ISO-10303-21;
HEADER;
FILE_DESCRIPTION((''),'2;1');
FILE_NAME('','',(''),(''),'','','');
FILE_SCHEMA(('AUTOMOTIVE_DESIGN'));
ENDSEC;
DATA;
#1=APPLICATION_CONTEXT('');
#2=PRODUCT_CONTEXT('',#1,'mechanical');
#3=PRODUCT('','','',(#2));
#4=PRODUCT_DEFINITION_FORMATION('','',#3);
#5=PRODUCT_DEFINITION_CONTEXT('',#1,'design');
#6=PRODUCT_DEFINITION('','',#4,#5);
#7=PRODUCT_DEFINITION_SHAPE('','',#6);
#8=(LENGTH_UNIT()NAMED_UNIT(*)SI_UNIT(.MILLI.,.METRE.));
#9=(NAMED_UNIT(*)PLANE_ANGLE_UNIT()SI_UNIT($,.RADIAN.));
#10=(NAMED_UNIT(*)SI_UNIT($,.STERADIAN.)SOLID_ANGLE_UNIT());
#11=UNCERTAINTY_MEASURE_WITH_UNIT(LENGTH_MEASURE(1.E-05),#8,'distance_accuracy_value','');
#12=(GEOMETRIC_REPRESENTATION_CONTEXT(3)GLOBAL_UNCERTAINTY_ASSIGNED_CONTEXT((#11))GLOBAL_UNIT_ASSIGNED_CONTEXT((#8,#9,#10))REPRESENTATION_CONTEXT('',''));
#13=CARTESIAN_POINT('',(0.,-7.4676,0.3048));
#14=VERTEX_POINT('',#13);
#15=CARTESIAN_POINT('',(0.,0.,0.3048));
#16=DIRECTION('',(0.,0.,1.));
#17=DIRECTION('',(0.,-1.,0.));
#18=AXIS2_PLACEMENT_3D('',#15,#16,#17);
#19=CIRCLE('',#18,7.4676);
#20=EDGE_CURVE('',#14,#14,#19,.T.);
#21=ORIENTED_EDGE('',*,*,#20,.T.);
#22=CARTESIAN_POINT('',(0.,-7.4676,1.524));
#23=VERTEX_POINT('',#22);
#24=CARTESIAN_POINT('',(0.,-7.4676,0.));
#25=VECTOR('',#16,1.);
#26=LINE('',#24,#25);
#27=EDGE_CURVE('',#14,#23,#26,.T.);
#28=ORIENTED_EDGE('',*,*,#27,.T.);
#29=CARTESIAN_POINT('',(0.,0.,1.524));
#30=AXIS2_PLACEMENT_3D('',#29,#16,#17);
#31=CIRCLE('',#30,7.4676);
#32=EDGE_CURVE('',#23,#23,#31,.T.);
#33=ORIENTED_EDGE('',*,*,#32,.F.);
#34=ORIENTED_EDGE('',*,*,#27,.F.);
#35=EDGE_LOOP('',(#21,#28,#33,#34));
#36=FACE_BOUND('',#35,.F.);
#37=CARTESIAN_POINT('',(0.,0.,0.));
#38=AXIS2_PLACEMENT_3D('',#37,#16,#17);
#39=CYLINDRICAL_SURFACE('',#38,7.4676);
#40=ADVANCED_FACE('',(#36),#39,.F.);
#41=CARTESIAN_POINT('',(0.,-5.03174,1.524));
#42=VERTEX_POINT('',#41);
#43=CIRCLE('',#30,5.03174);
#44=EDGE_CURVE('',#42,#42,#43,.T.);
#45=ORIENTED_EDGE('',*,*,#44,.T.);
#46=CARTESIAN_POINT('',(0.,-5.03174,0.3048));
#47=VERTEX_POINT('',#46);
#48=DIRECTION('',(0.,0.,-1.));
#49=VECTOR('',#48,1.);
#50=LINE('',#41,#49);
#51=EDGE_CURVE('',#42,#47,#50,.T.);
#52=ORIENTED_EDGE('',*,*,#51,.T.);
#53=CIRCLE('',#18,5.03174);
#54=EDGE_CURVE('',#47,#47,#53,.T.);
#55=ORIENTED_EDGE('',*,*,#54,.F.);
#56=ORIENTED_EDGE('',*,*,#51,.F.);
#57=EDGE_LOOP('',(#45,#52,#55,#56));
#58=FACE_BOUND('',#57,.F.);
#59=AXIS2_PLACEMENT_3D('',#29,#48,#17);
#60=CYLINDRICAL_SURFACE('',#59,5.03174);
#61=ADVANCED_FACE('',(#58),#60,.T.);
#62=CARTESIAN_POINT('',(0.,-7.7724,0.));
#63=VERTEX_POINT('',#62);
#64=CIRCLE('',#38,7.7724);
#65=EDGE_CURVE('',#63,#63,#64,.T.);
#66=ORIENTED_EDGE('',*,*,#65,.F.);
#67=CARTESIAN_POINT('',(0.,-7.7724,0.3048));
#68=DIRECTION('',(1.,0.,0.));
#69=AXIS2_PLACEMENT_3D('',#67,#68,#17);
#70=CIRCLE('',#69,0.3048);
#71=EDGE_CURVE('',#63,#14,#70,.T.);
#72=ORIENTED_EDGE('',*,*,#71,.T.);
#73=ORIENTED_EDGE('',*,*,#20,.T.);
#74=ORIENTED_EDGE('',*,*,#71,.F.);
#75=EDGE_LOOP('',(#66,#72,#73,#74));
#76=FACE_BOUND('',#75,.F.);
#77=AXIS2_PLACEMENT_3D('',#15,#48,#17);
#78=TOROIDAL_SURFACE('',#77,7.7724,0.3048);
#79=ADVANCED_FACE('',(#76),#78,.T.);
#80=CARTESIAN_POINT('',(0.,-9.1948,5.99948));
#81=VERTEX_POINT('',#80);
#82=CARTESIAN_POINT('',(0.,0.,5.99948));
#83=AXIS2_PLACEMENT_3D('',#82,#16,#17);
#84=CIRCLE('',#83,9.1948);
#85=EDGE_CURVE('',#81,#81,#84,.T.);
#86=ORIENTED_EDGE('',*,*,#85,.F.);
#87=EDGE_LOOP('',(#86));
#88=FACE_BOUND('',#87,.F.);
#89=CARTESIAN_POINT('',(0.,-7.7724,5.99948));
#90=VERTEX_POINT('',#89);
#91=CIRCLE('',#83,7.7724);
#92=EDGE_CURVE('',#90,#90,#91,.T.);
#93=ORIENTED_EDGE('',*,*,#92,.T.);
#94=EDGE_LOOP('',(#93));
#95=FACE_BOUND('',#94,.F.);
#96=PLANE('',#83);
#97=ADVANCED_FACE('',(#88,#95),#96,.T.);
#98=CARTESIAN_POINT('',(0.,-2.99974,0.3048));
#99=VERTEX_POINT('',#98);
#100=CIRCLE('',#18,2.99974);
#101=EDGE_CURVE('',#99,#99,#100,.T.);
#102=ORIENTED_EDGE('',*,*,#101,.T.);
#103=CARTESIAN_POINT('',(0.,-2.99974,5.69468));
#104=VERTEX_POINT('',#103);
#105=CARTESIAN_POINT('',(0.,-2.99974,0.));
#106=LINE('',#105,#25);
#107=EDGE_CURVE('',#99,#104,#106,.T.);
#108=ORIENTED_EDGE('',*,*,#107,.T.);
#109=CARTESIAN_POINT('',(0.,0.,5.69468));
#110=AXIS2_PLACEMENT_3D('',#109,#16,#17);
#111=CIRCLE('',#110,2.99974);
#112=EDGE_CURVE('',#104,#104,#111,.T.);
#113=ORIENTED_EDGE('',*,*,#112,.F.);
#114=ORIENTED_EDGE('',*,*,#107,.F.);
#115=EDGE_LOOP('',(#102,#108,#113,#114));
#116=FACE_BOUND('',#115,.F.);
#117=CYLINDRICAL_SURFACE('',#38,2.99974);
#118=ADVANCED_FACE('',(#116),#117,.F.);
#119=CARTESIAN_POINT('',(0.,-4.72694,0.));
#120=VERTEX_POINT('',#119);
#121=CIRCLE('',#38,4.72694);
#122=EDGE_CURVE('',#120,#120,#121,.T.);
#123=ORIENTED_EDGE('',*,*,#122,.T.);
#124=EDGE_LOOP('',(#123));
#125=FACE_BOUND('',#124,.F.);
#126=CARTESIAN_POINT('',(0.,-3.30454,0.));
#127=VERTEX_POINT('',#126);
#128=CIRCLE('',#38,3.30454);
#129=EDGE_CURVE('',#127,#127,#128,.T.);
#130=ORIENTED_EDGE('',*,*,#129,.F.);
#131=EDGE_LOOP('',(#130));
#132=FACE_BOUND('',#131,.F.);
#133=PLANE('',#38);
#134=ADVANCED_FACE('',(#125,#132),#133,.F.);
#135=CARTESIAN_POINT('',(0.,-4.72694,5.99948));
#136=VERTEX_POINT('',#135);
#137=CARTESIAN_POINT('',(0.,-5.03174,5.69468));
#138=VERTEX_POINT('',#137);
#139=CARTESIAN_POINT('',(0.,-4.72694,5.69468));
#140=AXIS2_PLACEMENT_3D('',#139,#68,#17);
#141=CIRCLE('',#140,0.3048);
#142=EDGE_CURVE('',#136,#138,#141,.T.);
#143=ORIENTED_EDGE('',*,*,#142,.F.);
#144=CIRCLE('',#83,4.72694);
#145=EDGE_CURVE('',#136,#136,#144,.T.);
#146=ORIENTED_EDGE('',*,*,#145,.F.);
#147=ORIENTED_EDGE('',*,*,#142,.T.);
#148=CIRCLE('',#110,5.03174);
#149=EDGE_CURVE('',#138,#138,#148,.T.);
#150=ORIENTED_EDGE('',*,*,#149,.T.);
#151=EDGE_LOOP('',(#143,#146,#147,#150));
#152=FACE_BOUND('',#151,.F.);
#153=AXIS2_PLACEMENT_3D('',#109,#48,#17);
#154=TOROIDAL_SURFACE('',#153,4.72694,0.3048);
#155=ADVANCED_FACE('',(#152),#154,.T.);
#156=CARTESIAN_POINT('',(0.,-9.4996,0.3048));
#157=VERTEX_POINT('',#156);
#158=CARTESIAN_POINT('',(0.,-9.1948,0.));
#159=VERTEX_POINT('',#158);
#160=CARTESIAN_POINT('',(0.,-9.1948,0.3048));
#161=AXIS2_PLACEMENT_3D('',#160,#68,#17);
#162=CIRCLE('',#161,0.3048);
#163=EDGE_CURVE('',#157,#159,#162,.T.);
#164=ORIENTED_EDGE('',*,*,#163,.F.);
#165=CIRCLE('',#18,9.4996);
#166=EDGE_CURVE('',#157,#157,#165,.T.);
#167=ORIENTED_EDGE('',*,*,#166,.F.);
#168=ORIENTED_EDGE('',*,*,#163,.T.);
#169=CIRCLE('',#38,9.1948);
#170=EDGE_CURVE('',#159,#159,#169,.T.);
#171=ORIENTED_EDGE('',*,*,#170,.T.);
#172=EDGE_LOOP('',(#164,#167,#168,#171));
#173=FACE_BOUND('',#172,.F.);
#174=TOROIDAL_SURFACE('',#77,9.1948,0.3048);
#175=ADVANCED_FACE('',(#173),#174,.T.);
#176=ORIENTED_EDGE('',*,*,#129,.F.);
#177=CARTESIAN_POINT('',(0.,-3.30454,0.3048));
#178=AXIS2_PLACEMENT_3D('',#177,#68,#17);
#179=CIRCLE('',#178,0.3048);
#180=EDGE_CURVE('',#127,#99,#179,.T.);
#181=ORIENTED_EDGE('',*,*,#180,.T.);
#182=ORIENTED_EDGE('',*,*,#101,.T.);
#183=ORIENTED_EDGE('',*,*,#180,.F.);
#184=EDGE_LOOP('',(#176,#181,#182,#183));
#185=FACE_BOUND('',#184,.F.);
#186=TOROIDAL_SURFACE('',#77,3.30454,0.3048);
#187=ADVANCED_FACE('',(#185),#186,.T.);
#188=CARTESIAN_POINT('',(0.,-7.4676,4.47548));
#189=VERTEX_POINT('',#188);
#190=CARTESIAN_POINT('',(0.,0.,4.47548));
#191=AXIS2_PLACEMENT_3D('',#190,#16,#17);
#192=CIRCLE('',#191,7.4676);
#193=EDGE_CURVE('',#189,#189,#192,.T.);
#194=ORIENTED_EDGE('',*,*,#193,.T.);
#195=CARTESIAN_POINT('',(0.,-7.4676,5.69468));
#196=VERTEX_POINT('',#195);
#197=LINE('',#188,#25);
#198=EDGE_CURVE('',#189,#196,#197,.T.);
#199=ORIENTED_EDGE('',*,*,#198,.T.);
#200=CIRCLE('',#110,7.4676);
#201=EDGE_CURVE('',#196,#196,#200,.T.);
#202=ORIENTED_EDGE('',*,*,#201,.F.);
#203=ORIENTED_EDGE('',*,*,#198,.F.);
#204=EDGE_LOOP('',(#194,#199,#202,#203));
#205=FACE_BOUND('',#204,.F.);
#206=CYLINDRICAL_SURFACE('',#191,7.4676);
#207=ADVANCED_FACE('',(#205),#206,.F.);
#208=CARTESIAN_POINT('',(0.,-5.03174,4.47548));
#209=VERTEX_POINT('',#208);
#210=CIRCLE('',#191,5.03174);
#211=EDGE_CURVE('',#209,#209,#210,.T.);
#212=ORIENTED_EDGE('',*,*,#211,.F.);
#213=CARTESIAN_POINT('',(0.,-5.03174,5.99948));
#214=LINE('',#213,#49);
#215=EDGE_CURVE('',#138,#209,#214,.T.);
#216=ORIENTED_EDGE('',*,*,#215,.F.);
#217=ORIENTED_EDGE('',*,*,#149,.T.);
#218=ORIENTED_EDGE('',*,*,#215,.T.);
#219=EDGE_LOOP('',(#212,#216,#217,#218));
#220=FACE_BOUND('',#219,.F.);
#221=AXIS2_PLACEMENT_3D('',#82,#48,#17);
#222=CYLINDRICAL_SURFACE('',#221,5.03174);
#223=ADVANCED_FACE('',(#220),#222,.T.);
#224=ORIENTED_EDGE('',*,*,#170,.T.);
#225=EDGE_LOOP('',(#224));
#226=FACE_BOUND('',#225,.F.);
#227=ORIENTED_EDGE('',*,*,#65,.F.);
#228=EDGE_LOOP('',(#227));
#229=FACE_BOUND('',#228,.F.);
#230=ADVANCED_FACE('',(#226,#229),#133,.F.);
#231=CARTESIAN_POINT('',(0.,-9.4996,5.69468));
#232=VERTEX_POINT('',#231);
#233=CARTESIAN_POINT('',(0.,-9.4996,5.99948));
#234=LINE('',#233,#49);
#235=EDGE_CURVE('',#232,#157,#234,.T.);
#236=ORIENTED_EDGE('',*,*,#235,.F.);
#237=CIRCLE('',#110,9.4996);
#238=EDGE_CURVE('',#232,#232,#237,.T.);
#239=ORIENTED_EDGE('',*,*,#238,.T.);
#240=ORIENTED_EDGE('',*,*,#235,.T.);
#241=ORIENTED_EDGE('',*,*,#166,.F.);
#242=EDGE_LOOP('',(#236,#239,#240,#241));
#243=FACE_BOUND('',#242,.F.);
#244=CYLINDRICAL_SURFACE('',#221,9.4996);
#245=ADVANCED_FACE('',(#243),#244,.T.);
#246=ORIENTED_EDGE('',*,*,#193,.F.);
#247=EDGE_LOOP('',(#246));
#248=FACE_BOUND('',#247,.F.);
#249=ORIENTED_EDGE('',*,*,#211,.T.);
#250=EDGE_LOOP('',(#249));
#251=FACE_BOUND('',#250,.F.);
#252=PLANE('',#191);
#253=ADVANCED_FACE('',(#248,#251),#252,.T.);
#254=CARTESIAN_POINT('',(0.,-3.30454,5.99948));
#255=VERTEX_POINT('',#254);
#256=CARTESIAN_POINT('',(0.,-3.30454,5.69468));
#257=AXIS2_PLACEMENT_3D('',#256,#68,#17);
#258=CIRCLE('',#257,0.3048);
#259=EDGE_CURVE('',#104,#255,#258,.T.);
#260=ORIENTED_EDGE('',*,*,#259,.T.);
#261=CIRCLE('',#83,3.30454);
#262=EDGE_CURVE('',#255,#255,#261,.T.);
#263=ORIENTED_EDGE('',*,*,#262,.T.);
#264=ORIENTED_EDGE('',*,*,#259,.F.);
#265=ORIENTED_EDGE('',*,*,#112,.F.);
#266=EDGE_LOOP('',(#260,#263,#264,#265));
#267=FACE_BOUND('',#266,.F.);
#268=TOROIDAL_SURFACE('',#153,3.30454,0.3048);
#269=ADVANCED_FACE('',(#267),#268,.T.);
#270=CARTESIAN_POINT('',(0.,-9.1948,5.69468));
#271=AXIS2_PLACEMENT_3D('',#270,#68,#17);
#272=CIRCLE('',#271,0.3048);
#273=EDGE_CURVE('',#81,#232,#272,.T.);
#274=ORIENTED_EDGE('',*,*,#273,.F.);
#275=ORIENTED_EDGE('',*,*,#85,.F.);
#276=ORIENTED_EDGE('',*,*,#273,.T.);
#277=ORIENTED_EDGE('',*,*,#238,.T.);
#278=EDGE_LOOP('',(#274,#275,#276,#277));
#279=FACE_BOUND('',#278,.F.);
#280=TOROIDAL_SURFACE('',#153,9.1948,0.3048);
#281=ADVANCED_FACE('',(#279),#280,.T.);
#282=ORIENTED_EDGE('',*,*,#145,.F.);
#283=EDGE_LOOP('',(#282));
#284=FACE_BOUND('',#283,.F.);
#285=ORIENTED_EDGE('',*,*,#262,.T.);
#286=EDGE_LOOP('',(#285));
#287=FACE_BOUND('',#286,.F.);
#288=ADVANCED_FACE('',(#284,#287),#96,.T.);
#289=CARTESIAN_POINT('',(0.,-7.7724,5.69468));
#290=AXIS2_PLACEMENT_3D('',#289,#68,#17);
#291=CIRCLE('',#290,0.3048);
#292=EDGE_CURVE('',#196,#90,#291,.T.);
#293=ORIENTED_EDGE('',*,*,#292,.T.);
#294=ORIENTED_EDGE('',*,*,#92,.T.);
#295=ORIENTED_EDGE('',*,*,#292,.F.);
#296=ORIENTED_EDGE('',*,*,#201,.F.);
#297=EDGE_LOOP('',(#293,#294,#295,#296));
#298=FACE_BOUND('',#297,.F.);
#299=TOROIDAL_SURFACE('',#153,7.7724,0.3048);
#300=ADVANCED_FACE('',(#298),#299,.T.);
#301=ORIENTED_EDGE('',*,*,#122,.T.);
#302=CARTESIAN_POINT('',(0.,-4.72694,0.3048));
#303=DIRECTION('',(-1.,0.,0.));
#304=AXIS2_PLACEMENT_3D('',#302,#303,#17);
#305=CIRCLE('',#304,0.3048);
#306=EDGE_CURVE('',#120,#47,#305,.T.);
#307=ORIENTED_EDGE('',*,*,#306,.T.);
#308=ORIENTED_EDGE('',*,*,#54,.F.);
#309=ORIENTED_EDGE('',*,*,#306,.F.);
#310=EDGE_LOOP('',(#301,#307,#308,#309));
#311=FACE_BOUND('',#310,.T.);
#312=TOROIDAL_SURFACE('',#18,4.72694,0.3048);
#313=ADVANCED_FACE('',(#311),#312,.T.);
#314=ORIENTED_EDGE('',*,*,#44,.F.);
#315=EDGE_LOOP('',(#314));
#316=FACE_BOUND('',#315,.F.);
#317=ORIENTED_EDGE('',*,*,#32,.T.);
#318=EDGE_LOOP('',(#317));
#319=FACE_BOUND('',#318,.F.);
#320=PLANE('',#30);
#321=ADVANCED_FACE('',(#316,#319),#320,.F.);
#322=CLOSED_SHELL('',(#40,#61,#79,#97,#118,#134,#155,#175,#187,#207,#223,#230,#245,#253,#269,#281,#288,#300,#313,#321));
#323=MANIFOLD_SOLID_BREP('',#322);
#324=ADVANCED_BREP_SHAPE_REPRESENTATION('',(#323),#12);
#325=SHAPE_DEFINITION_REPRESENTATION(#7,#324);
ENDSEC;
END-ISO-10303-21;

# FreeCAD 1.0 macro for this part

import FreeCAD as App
import Part
import Sketcher
Q = App.Units.Quantity


def edges_at(feature, points):
    """Names of the edges that pass closest to the given points."""
    edges = feature.Shape.Edges
    near = lambda p: min(range(len(edges)), key=lambda i: edges[i].distToShape(Part.Vertex(*p))[0])
    return sorted({f"Edge{near(p) + 1}" for p in points})


def add_polygon(sketch, points):
    """Adds a closed chain of lines whose ends are joined by coincident constraints."""
    first, n = sketch.GeometryCount, len(points)
    for a, b in zip(points, points[1:] + points[:1]):
        sketch.addGeometry(Part.LineSegment(App.Vector(*a, 0), App.Vector(*b, 0)), False)
    for i in range(n):
        sketch.addConstraint(Sketcher.Constraint("Coincident", first + i, 2, first + (i + 1) % n, 1))

doc = App.newDocument("Part")
body = doc.addObject("PartDesign::Body", "Body")

sketch1 = body.newObject("Sketcher::SketchObject", "Sketch")
sketch1.AttachmentSupport = (doc.getObject("YZ_Plane"), [""])
sketch1.MapMode = "FlatFace"
add_polygon(sketch1, [(-5, 0), (-3, 0), (-3, 6), (-5, 6), (-5, 4.5), (-7.5, 4.5), (-7.5, 6), (-9.5, 6), (-9.5, 0), (-7.5, 0), (-7.5, 1.5), (-5, 1.5)])
sketch1.addConstraint([
    Sketcher.Constraint("Horizontal", 0),
    Sketcher.Constraint("Vertical", 1),
    Sketcher.Constraint("Horizontal", 2),
    Sketcher.Constraint("Vertical", 3),
    Sketcher.Constraint("Horizontal", 4),
    Sketcher.Constraint("Vertical", 5),
    Sketcher.Constraint("Horizontal", 6),
    Sketcher.Constraint("Vertical", 7),
    Sketcher.Constraint("Horizontal", 8),
    Sketcher.Constraint("Vertical", 9),
    Sketcher.Constraint("Horizontal", 10),
    Sketcher.Constraint("Vertical", 11),
    Sketcher.Constraint("PointOnObject", 0, 2, -1),
    Sketcher.Constraint("PointOnObject", 7, 2, -1),
    Sketcher.Constraint("Horizontal", 2, 2, 5, 2),
    Sketcher.Constraint("Vertical", 5, 2, 8, 2),
    Sketcher.Constraint("Vertical", 3, 2, 10, 2),
    Sketcher.Constraint("Equal", 2, 6),
    Sketcher.Constraint("Equal", 5, 9),
    Sketcher.Constraint("DistanceX", 0, 1, 0, 2, Q("0.08 in")),
    Sketcher.Constraint("DistanceY", 3, 2, 3, 1, Q("0.06 in")),
    Sketcher.Constraint("DistanceX", 4, 2, 4, 1, Q("0.0959 in")),
    Sketcher.Constraint("DistanceY", 1, 1, 1, 2, Q("0.2362 in")),
    Sketcher.Constraint("DistanceX", 4, 2, -1, 1, Q("0.294 in")),
])
revolution = body.newObject("PartDesign::Revolution", "Revolution")
revolution.Profile = sketch1
revolution.ReferenceAxis = (sketch1, ["V_Axis"])
revolution.Angle = 360
doc.recompute()

fillet = body.newObject("PartDesign::Fillet", "Fillet")
fillet.Base = (revolution, edges_at(revolution, [
    (0, 9.5, 5.999),
    (0, 7.468, 5.999),
    (0, 5.032, 5.999),
    (0, 3, 5.999),
    (0, 9.5, 0),
    (0, 7.468, 0),
    (0, 5.032, 0),
    (0, 3, 0),
]))
fillet.Radius = Q("0.012 in")

doc.recompute()
